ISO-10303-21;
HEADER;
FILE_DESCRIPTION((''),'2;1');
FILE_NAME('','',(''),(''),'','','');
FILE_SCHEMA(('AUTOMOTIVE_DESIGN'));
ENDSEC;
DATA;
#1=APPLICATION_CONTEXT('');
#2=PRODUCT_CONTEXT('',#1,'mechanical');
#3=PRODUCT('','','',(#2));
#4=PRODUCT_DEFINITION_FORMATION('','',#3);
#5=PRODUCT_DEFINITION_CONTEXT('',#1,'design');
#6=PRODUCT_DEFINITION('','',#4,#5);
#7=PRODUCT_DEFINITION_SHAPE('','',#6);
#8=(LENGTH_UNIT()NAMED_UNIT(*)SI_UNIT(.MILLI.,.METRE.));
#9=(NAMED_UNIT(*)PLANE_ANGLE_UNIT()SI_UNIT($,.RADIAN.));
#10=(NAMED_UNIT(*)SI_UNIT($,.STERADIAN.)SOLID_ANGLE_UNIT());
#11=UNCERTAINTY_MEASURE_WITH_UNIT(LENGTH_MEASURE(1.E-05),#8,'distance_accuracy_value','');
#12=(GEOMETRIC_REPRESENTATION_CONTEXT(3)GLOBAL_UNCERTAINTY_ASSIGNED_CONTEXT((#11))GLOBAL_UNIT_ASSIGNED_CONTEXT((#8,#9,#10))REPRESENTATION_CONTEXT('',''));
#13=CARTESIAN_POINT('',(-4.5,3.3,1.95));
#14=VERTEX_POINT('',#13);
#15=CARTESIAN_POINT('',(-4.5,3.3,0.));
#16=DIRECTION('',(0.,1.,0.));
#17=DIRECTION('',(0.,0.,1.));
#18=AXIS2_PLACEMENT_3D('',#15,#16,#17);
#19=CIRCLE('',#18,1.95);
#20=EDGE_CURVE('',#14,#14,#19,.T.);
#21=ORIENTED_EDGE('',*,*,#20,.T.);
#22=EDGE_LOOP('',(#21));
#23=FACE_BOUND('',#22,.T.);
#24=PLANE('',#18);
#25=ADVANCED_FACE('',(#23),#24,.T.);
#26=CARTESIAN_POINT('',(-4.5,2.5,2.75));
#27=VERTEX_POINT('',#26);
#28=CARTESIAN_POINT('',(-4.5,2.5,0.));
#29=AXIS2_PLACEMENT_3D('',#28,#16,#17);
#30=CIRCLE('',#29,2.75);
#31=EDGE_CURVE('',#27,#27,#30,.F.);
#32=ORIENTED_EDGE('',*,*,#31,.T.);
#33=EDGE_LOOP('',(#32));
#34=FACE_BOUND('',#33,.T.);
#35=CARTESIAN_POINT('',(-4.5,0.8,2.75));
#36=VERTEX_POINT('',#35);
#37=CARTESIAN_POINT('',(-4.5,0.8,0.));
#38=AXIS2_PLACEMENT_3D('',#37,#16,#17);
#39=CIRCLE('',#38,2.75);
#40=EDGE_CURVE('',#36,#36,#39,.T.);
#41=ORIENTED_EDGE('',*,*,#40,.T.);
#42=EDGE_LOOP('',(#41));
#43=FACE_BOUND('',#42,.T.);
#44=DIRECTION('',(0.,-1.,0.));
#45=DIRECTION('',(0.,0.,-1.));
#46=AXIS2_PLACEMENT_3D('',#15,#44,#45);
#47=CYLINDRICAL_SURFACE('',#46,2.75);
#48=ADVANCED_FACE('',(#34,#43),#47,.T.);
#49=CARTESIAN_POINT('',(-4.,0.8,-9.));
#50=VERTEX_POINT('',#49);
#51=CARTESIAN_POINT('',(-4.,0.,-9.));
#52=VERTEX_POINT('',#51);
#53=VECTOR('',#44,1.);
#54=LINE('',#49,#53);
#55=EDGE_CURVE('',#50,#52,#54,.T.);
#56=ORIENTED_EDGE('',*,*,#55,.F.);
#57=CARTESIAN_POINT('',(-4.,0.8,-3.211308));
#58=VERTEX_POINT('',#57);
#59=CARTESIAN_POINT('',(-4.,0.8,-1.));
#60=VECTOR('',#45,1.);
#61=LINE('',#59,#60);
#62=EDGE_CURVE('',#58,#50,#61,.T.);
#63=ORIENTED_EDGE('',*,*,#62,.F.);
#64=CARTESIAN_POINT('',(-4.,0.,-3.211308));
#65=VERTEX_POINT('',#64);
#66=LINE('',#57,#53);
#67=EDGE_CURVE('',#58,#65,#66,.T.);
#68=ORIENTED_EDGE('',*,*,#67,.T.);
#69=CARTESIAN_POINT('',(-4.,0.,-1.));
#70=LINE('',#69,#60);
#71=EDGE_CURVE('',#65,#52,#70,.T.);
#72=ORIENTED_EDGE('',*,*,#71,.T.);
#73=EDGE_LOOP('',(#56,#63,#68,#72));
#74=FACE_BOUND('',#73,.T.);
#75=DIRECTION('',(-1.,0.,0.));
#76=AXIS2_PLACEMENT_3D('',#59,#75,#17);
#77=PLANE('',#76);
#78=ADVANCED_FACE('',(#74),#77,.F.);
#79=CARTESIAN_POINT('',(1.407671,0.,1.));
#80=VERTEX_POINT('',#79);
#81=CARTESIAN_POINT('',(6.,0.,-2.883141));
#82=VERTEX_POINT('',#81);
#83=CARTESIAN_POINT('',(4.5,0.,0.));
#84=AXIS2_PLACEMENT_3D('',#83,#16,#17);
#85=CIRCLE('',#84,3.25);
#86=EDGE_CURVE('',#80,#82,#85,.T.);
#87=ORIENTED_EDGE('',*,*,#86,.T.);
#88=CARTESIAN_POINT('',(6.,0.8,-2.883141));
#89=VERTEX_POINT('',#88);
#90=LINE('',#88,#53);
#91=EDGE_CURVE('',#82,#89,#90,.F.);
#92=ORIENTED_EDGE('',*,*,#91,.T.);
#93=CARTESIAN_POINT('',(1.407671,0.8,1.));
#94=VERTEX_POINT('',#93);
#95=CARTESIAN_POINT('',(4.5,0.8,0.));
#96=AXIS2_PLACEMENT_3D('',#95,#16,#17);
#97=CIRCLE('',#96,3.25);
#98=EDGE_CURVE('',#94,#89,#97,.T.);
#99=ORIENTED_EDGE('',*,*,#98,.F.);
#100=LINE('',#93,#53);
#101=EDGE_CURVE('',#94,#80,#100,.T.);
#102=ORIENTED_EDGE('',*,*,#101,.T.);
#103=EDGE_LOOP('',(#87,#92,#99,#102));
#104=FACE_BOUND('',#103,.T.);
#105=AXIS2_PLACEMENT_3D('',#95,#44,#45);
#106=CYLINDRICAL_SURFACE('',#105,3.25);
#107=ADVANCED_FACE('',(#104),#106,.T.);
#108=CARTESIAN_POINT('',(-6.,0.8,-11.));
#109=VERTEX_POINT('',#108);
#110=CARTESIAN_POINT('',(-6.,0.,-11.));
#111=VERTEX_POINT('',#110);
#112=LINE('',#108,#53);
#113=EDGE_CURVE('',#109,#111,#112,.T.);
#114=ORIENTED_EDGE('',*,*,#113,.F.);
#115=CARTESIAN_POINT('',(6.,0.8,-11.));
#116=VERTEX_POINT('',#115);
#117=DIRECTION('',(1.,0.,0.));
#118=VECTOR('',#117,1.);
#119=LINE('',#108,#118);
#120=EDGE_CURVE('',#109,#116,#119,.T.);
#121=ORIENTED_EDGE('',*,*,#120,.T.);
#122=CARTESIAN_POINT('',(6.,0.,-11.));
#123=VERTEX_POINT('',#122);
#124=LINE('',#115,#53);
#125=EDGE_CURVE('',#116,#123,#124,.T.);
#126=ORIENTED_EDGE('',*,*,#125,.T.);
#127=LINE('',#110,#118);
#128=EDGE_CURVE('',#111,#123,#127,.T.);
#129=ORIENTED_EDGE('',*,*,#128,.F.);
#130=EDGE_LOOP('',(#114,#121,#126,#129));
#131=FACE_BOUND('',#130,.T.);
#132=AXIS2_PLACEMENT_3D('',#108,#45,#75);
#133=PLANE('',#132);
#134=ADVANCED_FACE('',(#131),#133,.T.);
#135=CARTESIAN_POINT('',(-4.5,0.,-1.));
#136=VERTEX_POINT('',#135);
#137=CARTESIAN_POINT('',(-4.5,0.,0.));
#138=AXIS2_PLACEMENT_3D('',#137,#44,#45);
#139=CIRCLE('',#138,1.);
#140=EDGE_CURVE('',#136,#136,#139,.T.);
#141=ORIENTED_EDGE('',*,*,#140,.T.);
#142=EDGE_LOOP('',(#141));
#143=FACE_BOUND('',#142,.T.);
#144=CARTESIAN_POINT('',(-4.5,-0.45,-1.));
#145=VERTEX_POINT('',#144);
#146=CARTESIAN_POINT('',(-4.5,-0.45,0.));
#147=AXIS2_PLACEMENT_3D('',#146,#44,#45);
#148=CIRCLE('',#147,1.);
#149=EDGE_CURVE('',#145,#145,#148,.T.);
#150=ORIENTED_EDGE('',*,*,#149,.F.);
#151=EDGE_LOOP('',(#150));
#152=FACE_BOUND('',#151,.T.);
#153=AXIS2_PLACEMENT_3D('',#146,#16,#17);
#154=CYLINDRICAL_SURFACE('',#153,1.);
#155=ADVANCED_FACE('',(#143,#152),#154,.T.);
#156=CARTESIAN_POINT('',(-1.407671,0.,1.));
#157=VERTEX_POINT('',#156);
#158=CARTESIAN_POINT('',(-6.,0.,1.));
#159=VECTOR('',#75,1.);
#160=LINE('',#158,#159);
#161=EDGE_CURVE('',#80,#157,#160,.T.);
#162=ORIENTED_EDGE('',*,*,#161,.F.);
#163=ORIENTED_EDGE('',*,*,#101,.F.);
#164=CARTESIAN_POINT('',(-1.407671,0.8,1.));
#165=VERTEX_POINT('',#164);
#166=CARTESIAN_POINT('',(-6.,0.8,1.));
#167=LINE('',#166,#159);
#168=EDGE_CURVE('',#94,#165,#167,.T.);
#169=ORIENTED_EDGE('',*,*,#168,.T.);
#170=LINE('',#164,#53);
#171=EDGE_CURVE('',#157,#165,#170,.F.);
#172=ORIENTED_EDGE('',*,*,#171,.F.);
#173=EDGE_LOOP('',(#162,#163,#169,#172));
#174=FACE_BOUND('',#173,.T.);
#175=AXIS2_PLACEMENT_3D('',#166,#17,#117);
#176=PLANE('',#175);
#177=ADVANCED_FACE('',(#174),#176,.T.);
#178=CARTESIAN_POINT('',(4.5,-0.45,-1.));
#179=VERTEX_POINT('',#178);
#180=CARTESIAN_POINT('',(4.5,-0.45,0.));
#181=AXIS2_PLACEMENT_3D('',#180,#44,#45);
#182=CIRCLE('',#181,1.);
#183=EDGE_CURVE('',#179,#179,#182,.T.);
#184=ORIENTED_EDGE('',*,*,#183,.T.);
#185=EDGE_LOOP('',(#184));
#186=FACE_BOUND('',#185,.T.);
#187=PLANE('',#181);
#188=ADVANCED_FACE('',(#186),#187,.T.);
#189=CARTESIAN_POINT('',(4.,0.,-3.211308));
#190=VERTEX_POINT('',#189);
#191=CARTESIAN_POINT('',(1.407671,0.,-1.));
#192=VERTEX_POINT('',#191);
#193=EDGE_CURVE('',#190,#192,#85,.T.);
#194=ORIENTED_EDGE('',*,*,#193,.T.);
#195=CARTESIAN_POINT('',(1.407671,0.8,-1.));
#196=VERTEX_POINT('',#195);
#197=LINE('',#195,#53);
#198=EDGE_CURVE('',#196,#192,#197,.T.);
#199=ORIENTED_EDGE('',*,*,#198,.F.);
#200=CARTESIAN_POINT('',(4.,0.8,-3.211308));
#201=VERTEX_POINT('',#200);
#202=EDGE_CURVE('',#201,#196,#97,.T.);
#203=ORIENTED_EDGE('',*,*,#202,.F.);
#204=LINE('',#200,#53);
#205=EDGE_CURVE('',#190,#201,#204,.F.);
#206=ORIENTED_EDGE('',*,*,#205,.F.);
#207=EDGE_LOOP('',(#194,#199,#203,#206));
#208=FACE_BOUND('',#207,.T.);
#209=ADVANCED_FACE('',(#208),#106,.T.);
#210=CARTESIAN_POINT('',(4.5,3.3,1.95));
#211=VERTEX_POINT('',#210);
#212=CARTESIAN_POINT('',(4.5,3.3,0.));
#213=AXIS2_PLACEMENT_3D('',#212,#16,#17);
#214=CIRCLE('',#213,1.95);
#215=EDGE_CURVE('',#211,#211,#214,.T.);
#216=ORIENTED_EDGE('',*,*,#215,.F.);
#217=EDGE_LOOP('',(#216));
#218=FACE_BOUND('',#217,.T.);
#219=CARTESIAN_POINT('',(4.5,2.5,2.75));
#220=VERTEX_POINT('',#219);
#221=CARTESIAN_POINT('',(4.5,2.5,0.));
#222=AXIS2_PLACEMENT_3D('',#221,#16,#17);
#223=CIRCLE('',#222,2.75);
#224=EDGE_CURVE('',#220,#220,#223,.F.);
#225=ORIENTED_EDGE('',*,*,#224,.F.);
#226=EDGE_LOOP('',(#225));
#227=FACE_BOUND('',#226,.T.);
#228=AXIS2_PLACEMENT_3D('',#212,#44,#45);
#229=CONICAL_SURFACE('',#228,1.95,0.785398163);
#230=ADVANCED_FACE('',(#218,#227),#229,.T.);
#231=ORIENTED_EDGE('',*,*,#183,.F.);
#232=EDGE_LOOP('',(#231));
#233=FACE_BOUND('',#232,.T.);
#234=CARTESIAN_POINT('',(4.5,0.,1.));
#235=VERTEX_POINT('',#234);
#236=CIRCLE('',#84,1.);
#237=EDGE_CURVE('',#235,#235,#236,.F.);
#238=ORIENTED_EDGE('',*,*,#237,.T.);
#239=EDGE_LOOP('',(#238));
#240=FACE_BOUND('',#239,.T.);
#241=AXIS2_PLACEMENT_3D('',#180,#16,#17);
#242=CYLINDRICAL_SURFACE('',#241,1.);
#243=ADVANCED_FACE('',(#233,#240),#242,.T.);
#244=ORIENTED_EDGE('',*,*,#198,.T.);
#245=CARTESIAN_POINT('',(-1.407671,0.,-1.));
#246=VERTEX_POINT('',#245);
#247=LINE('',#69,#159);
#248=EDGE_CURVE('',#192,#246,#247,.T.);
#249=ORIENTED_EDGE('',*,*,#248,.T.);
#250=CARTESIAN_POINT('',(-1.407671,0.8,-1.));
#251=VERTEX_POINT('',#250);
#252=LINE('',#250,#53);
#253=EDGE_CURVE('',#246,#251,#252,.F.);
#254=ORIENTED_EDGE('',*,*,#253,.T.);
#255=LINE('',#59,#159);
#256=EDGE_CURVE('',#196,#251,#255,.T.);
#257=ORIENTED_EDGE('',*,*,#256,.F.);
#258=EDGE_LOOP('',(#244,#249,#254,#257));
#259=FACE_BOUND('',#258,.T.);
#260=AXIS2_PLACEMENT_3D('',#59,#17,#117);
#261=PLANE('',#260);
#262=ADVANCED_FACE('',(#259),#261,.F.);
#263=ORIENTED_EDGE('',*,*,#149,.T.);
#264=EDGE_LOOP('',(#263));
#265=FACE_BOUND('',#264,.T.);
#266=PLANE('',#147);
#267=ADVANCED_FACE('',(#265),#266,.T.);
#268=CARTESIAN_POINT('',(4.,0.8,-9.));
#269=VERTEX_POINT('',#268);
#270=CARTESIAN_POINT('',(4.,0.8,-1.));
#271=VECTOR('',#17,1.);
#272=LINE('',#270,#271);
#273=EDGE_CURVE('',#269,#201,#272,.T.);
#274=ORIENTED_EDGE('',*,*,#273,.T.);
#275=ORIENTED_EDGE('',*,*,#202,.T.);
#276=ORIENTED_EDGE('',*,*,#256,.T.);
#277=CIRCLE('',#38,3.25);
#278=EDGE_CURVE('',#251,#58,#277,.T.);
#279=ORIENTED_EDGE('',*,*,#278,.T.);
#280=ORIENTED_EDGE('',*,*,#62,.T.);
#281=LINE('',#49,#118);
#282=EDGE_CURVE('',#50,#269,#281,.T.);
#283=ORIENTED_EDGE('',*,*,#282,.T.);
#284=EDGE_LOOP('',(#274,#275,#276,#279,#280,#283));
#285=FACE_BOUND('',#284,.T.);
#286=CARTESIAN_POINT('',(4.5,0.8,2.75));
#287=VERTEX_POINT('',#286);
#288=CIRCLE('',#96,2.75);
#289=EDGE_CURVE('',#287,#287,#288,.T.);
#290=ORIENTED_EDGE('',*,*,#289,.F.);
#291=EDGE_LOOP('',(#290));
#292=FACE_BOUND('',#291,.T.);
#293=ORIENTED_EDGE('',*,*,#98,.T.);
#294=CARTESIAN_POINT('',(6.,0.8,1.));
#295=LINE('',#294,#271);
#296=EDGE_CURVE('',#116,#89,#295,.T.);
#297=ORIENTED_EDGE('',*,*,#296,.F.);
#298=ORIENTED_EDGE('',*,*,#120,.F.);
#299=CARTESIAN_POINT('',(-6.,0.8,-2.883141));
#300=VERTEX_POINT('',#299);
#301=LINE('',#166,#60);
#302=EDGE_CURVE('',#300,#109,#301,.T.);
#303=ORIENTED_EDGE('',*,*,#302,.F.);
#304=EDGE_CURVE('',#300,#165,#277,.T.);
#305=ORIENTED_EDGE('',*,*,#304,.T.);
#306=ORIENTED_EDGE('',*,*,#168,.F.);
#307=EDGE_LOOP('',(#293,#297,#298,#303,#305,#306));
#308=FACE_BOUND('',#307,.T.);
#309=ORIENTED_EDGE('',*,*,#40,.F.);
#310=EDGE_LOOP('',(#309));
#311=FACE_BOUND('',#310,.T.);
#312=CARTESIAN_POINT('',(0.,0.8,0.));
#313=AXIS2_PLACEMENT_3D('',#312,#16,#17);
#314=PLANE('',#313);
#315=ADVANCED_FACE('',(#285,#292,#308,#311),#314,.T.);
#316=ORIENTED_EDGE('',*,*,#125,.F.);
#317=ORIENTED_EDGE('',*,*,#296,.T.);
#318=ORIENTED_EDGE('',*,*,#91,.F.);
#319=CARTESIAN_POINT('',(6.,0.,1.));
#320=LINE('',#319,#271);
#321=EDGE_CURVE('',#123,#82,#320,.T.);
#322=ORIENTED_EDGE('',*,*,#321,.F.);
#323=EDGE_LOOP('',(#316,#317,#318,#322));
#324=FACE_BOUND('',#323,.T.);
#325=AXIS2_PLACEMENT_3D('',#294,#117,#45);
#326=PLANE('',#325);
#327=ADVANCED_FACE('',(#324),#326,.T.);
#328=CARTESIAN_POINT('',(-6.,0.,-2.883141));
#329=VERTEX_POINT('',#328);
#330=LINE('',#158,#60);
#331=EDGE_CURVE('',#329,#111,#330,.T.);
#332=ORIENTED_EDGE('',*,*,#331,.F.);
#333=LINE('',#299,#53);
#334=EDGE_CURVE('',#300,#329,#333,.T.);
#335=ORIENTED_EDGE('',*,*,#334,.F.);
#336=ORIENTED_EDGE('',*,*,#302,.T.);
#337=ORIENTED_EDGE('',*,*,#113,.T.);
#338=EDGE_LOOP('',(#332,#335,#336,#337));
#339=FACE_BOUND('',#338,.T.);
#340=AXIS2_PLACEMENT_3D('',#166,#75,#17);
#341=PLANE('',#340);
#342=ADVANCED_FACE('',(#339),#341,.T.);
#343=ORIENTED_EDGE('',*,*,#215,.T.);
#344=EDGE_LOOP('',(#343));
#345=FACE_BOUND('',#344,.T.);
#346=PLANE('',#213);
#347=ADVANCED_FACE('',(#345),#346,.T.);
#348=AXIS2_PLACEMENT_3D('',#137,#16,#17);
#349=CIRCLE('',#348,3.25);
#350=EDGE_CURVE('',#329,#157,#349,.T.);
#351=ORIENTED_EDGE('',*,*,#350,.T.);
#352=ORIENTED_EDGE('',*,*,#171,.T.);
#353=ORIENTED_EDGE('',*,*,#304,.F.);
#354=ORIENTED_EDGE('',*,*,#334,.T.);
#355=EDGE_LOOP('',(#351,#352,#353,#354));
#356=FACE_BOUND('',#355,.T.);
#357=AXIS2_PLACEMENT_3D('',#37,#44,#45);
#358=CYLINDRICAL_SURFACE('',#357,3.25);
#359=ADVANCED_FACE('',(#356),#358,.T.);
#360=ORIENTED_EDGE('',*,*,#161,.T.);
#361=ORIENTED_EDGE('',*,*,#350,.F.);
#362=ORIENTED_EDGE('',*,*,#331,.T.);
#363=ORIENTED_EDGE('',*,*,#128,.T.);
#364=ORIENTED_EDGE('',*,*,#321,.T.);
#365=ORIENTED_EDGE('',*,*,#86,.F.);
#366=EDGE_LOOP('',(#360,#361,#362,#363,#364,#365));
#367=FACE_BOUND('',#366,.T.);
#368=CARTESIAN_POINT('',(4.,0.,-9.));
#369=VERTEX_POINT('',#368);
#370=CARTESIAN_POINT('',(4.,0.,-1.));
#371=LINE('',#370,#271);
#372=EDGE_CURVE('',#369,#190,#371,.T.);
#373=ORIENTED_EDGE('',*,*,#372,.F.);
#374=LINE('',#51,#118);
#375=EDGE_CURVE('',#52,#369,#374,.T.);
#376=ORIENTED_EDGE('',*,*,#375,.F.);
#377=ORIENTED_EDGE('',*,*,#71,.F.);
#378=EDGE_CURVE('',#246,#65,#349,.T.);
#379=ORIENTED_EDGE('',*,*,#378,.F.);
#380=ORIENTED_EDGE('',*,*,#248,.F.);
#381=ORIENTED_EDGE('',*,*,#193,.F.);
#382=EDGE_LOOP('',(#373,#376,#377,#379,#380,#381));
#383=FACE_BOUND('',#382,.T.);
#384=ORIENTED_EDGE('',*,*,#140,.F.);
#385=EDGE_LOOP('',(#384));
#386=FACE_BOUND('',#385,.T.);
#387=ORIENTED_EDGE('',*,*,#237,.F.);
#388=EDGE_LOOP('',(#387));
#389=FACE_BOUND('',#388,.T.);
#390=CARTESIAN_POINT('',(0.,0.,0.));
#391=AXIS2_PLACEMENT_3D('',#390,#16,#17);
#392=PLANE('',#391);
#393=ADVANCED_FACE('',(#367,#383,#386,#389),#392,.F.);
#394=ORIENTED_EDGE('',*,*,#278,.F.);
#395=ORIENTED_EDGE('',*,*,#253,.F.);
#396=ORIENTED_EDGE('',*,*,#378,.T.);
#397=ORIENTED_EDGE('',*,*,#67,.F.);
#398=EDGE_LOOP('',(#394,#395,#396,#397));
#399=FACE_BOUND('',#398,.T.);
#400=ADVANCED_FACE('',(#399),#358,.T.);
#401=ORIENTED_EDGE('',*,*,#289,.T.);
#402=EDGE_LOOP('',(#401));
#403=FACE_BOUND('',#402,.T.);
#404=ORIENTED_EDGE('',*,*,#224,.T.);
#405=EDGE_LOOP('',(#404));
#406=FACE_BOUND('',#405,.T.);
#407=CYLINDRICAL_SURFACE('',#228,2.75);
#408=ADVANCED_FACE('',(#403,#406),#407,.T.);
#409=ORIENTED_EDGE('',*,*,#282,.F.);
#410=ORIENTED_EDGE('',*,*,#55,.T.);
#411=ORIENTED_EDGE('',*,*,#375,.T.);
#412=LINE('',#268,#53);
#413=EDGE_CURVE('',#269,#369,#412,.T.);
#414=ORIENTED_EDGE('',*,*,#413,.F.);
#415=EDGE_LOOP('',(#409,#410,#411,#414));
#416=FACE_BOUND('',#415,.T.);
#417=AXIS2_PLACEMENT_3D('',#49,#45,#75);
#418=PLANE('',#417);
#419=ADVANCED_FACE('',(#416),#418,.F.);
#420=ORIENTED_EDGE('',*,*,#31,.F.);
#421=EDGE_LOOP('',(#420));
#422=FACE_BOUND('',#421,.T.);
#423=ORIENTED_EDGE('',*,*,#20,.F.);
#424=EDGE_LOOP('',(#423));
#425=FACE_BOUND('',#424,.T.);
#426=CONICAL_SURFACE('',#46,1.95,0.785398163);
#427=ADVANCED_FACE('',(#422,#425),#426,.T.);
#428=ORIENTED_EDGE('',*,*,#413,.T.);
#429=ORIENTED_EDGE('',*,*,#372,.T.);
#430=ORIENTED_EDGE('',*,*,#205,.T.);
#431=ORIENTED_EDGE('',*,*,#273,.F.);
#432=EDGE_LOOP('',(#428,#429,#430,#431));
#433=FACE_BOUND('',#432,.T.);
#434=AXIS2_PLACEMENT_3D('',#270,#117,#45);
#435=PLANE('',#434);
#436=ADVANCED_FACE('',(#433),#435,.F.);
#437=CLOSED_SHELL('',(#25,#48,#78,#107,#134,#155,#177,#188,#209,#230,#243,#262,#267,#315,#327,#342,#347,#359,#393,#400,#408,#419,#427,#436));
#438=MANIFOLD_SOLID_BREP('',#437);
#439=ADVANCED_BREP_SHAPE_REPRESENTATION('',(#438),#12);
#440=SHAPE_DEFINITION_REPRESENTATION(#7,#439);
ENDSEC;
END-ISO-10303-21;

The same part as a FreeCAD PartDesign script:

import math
import FreeCAD as App
import Part
import Sketcher
from FreeCAD import Vector
Q = App.Units.Quantity


def edges_at(feature, points):
    """Names of the edges that pass closest to the given points."""
    edges = feature.Shape.Edges
    near = lambda p: min(range(len(edges)), key=lambda i: edges[i].distToShape(Part.Vertex(*p))[0])
    return sorted({f"Edge{near(p) + 1}" for p in points})

doc = App.newDocument("Part")
body = doc.addObject("PartDesign::Body", "Body")

# Sketch on XZ plane
sketch1 = body.newObject("Sketcher::SketchObject", "Sketch")
sketch1.AttachmentSupport = (doc.getObject("XZ_Plane"), [""])
sketch1.MapMode = "FlatFace"
sketch1.addGeometry(Part.ArcOfCircle(Part.Circle(Vector(-4.5, 0, 0), Vector(0, 0, 1), 3.2), math.radians(13), math.radians(347)), False)
sketch1.addGeometry(Part.LineSegment(Vector(-1.3, 0.8, 0), Vector(1.3, 0.8, 0)), False)
sketch1.addGeometry(Part.ArcOfCircle(Part.Circle(Vector(4.5, 0, 0), Vector(0, 0, 1), 3.2), math.radians(-167), math.radians(167)), False)
sketch1.addGeometry(Part.LineSegment(Vector(1.3, -0.8, 0), Vector(-1.3, -0.8, 0)), False)
sketch1.addConstraint(Sketcher.Constraint("Coincident", 0, 1, 1, 1))
sketch1.addConstraint(Sketcher.Constraint("Coincident", 1, 2, 2, 2))
sketch1.addConstraint(Sketcher.Constraint("Coincident", 2, 1, 3, 1))
sketch1.addConstraint(Sketcher.Constraint("Coincident", 3, 2, 0, 2))
sketch1.addConstraint(Sketcher.Constraint("Horizontal", 1))
sketch1.addConstraint(Sketcher.Constraint("Horizontal", 3))
sketch1.addConstraint(Sketcher.Constraint("Equal", 0, 2))
sketch1.addConstraint(Sketcher.Constraint("Symmetric", 0, 3, 2, 3, -1, 1))
sketch1.addConstraint(Sketcher.Constraint("Symmetric", 1, 2, 2, 1, -1))
sketch1.addConstraint(Sketcher.Constraint("Radius", 0, Q("3.25 mm")))
sketch1.addConstraint(Sketcher.Constraint("DistanceX", 0, 3, 2, 3, Q("9 mm")))
sketch1.addConstraint(Sketcher.Constraint("DistanceY", 2, 1, 1, 2, Q("1.5 mm")))
pad1 = body.newObject("PartDesign::Pad", "Pad")
pad1.Profile = sketch1
pad1.Length = 0.8
pad1.Reversed = True

# Sketch on XZ plane
sketch2 = body.newObject("Sketcher::SketchObject", "Sketch001")
sketch2.AttachmentSupport = (doc.getObject("XZ_Plane"), [""])
sketch2.MapMode = "FlatFace"
sketch2.AttachmentOffset = App.Placement(Vector(0, 0, -0.8), App.Rotation())
sketch2.addGeometry(Part.Circle(Vector(-4.5, 0, 0), Vector(0, 0, 1), 2.8), False)
sketch2.addGeometry(Part.Circle(Vector(4.5, 0, 0), Vector(0, 0, 1), 2.8), False)
sketch2.addConstraint(Sketcher.Constraint("Equal", 0, 1))
sketch2.addConstraint(Sketcher.Constraint("Symmetric", 0, 3, 1, 3, -1, 1))
sketch2.addConstraint(Sketcher.Constraint("PointOnObject", 0, 3, -1))
sketch2.addConstraint(Sketcher.Constraint("Diameter", 0, Q("5.5 mm")))
sketch2.addConstraint(Sketcher.Constraint("DistanceX", 0, 3, 1, 3, Q("9 mm")))
pad2 = body.newObject("PartDesign::Pad", "Pad001")
pad2.Profile = sketch2
pad2.Length = 2.5
pad2.Reversed = True
doc.recompute()

chamfer = body.newObject("PartDesign::Chamfer", "Chamfer")
chamfer.Base = (pad2, edges_at(pad2, [(-4.5, 3.3, -2.75), (4.5, 3.3, -2.75)]))
chamfer.Size = 0.8

# Sketch on XZ plane
sketch3 = body.newObject("Sketcher::SketchObject", "Sketch002")
sketch3.AttachmentSupport = (doc.getObject("XZ_Plane"), [""])
sketch3.MapMode = "FlatFace"
sketch3.addGeometry(Part.Circle(Vector(-4.5, 0, 0), Vector(0, 0, 1), 1), False)
sketch3.addGeometry(Part.Circle(Vector(4.5, 0, 0), Vector(0, 0, 1), 1), False)
sketch3.addConstraint(Sketcher.Constraint("Equal", 0, 1))
sketch3.addConstraint(Sketcher.Constraint("Symmetric", 0, 3, 1, 3, -1, 1))
sketch3.addConstraint(Sketcher.Constraint("PointOnObject", 0, 3, -1))
sketch3.addConstraint(Sketcher.Constraint("Diameter", 0, Q("2 mm")))
sketch3.addConstraint(Sketcher.Constraint("DistanceX", 0, 3, 1, 3, Q("9 mm")))
pad3 = body.newObject("PartDesign::Pad", "Pad002")
pad3.Profile = sketch3
pad3.Length = 0.45

# Sketch on XZ plane
sketch4 = body.newObject("Sketcher::SketchObject", "Sketch003")
sketch4.AttachmentSupport = (doc.getObject("XZ_Plane"), [""])
sketch4.MapMode = "FlatFace"
sketch4.addGeometry(Part.LineSegment(Vector(-6, 1, 0), Vector(-6, -11, 0)), False)
sketch4.addGeometry(Part.LineSegment(Vector(-6, -11, 0), Vector(6, -11, 0)), False)
sketch4.addGeometry(Part.LineSegment(Vector(6, -11, 0), Vector(6, 1, 0)), False)
sketch4.addGeometry(Part.LineSegment(Vector(6, 1, 0), Vector(-6, 1, 0)), False)
sketch4.addGeometry(Part.LineSegment(Vector(4, -9, 0), Vector(-4, -9, 0)), False)
sketch4.addGeometry(Part.LineSegment(Vector(-4, -9, 0), Vector(-4, -1, 0)), False)
sketch4.addGeometry(Part.LineSegment(Vector(-4, -1, 0), Vector(4, -1, 0)), False)
sketch4.addGeometry(Part.LineSegment(Vector(4, -1, 0), Vector(4, -9, 0)), False)
sketch4.addConstraint(Sketcher.Constraint("Coincident", 0, 2, 1, 1))
sketch4.addConstraint(Sketcher.Constraint("Coincident", 1, 2, 2, 1))
sketch4.addConstraint(Sketcher.Constraint("Coincident", 2, 2, 3, 1))
sketch4.addConstraint(Sketcher.Constraint("Coincident", 3, 2, 0, 1))
sketch4.addConstraint(Sketcher.Constraint("Coincident", 4, 2, 5, 1))
sketch4.addConstraint(Sketcher.Constraint("Coincident", 5, 2, 6, 1))
sketch4.addConstraint(Sketcher.Constraint("Coincident", 6, 2, 7, 1))
sketch4.addConstraint(Sketcher.Constraint("Coincident", 7, 2, 4, 1))
sketch4.addConstraint(Sketcher.Constraint("Vertical", 0))
sketch4.addConstraint(Sketcher.Constraint("Horizontal", 1))
sketch4.addConstraint(Sketcher.Constraint("Vertical", 2))
sketch4.addConstraint(Sketcher.Constraint("Horizontal", 3))
sketch4.addConstraint(Sketcher.Constraint("Horizontal", 4))
sketch4.addConstraint(Sketcher.Constraint("Vertical", 5))
sketch4.addConstraint(Sketcher.Constraint("Horizontal", 6))
sketch4.addConstraint(Sketcher.Constraint("Vertical", 7))
sketch4.addConstraint(Sketcher.Constraint("Equal", 3, 0))
sketch4.addConstraint(Sketcher.Constraint("Equal", 6, 5))
sketch4.addConstraint(Sketcher.Constraint("DistanceX", 1, 1, 1, 2, Q("12 mm")))
sketch4.addConstraint(Sketcher.Constraint("DistanceX", 4, 2, 4, 1, Q("8 mm")))
sketch4.addConstraint(Sketcher.Constraint("DistanceX", 0, 2, -1, 1, Q("6 mm")))
sketch4.addConstraint(Sketcher.Constraint("DistanceY", 0, 2, -1, 1, Q("11 mm")))
sketch4.addConstraint(Sketcher.Constraint("DistanceX", 4, 2, -1, 1, Q("4 mm")))
sketch4.addConstraint(Sketcher.Constraint("DistanceY", 4, 2, -1, 1, Q("9 mm")))
pad4 = body.newObject("PartDesign::Pad", "Pad003")
pad4.Profile = sketch4
pad4.Length = 0.8
pad4.Reversed = True

doc.recompute()
